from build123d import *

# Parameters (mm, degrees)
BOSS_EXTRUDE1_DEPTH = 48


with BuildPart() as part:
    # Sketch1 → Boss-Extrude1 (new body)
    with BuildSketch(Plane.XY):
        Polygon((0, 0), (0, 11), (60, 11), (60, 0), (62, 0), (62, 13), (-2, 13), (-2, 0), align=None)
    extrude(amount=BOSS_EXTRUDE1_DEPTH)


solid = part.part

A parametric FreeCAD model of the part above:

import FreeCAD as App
import Part
import Sketcher

V = App.Vector

doc = App.newDocument("Part")
body = doc.addObject("PartDesign::Body", "Body")

# Sketch on XY plane
sketch1 = doc.addObject("Sketcher::SketchObject", "Sketch")
body.addObject(sketch1)
sketch1.AttachmentSupport = (doc.XY_Plane, [""])
sketch1.MapMode = "FlatFace"
sketch1.addGeometry(Part.LineSegment(V(0, 0, 0), V(0, 11, 0)), False)
sketch1.addGeometry(Part.LineSegment(V(0, 11, 0), V(60, 11, 0)), False)
sketch1.addGeometry(Part.LineSegment(V(60, 11, 0), V(60, 0, 0)), False)
sketch1.addGeometry(Part.LineSegment(V(60, 0, 0), V(62, 0, 0)), False)
sketch1.addGeometry(Part.LineSegment(V(62, 0, 0), V(62, 13, 0)), False)
sketch1.addGeometry(Part.LineSegment(V(62, 13, 0), V(-2, 13, 0)), False)
sketch1.addGeometry(Part.LineSegment(V(-2, 13, 0), V(-2, 0, 0)), False)
sketch1.addGeometry(Part.LineSegment(V(-2, 0, 0), V(0, 0, 0)), False)
sketch1.addConstraint(Sketcher.Constraint("Coincident", 0, 2, 1, 1))
sketch1.addConstraint(Sketcher.Constraint("Coincident", 1, 2, 2, 1))
sketch1.addConstraint(Sketcher.Constraint("Coincident", 2, 2, 3, 1))
sketch1.addConstraint(Sketcher.Constraint("Coincident", 3, 2, 4, 1))
sketch1.addConstraint(Sketcher.Constraint("Coincident", 4, 2, 5, 1))
sketch1.addConstraint(Sketcher.Constraint("Coincident", 5, 2, 6, 1))
sketch1.addConstraint(Sketcher.Constraint("Coincident", 6, 2, 7, 1))
sketch1.addConstraint(Sketcher.Constraint("Coincident", 7, 2, 0, 1))
sketch1.addConstraint(Sketcher.Constraint("Vertical", 0))
sketch1.addConstraint(Sketcher.Constraint("Horizontal", 1))
sketch1.addConstraint(Sketcher.Constraint("Vertical", 2))
sketch1.addConstraint(Sketcher.Constraint("Horizontal", 3))
sketch1.addConstraint(Sketcher.Constraint("Vertical", 4))
sketch1.addConstraint(Sketcher.Constraint("Horizontal", 5))
sketch1.addConstraint(Sketcher.Constraint("Vertical", 6))
sketch1.addConstraint(Sketcher.Constraint("Horizontal", 7))
sketch1.addConstraint(Sketcher.Constraint("Coincident", 7, 2, -1, 1))
sketch1.addConstraint(Sketcher.Constraint("PointOnObject", 2, 2, -1))
sketch1.addConstraint(Sketcher.Constraint("Equal", 3, 7))
sketch1.addConstraint(Sketcher.Constraint("DistanceX", 1, 1, 1, 2, 60.0))
sketch1.addConstraint(Sketcher.Constraint("DistanceX", 3, 1, 3, 2, 2.0))
sketch1.addConstraint(Sketcher.Constraint("DistanceY", 0, 1, 0, 2, 11.0))
sketch1.addConstraint(Sketcher.Constraint("DistanceY", 4, 1, 4, 2, 13.0))
pad1 = doc.addObject("PartDesign::Pad", "Pad")
body.addObject(pad1)
pad1.Profile = sketch1
pad1.Length = 48

doc.recompute()
